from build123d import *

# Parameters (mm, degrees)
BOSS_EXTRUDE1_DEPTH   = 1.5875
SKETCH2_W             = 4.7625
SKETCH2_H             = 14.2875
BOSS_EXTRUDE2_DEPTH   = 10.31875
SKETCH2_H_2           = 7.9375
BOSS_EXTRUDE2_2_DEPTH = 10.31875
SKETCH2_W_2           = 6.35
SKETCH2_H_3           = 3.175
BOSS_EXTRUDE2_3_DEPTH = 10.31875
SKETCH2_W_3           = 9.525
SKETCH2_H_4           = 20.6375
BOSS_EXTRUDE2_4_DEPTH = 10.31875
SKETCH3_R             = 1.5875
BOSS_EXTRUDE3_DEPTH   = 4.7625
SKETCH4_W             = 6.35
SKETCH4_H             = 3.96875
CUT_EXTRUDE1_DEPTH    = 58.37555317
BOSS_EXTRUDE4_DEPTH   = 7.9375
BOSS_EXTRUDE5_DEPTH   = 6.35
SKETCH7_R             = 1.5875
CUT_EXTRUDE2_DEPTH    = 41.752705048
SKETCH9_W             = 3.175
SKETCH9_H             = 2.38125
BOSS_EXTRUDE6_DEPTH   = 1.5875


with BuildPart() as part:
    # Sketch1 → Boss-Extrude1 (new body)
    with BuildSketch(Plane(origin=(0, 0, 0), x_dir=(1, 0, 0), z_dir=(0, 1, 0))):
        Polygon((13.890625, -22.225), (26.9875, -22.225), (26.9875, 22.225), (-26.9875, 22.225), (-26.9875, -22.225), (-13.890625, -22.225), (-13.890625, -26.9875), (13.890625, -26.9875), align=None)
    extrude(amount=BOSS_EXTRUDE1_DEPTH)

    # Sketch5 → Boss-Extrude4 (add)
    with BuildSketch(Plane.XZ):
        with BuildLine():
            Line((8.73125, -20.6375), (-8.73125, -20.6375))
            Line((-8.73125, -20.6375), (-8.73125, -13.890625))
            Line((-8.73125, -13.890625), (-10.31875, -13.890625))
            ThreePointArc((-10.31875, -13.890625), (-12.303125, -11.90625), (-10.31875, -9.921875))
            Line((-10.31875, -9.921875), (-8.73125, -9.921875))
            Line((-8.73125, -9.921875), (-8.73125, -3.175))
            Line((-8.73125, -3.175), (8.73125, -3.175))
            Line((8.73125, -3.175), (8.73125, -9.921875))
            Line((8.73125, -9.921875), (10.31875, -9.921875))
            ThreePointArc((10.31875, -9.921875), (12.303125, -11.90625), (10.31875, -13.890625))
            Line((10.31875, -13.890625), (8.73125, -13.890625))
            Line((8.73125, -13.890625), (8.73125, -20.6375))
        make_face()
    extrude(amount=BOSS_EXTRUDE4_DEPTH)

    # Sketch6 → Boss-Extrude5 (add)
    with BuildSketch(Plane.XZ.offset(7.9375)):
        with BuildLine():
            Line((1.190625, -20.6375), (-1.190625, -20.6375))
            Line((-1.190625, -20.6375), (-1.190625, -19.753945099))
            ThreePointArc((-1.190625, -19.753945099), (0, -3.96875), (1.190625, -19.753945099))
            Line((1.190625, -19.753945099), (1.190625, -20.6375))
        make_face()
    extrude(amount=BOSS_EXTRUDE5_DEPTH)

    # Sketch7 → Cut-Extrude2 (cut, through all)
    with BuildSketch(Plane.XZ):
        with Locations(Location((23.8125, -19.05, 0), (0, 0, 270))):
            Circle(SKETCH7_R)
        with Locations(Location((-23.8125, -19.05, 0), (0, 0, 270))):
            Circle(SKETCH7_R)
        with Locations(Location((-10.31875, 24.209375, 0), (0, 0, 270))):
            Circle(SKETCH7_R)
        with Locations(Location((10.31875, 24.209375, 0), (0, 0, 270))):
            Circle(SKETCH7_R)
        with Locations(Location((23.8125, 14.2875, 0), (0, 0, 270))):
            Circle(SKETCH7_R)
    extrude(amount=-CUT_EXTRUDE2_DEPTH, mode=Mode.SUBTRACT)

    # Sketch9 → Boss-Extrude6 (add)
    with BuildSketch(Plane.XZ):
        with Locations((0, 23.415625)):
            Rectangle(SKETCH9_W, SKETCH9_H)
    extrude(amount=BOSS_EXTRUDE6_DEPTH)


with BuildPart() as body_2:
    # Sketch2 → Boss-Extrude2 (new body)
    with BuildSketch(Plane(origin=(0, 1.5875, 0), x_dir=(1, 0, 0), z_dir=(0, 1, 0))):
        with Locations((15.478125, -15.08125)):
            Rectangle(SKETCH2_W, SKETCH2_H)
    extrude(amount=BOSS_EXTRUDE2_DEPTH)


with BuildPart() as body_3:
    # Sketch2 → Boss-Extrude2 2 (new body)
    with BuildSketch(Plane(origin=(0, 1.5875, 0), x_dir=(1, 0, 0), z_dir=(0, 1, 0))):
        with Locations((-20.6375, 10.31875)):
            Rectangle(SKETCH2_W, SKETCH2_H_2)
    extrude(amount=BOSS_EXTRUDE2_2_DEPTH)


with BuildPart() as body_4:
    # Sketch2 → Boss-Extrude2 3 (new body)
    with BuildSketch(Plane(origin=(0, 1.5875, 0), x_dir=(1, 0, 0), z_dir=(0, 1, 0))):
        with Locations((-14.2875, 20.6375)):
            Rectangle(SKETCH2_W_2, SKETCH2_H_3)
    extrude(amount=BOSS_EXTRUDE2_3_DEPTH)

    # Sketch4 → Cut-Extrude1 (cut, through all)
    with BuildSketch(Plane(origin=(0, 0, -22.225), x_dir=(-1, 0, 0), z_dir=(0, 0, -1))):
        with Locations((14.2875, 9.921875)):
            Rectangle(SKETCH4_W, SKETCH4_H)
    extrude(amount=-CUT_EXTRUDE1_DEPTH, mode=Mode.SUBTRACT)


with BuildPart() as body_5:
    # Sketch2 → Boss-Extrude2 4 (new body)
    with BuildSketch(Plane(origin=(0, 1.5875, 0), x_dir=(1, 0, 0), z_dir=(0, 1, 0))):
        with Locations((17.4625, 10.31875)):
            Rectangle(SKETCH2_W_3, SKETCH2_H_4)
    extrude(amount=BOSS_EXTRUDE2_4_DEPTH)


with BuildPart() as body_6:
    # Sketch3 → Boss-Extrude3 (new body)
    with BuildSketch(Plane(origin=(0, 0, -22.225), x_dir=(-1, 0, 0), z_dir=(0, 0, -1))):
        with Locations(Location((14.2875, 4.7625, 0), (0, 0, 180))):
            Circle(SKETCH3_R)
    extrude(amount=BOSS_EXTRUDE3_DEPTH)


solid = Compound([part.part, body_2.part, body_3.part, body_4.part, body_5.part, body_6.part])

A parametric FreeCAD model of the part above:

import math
import FreeCAD as App
import Part
import Sketcher

V = App.Vector
Q = App.Units.Quantity

doc = App.newDocument("Part")
body = doc.addObject("PartDesign::Body", "Body")

# Sketch on XZ plane
sketch1 = body.newObject("Sketcher::SketchObject", "Sketch")
sketch1.AttachmentSupport = (doc.getObject("XZ_Plane"), [""])
sketch1.MapMode = "FlatFace"
sketch1.addGeometry(Part.LineSegment(V(13.890625, 22.225, 0), V(26.9875, 22.225, 0)), False)
sketch1.addGeometry(Part.LineSegment(V(26.9875, 22.225, 0), V(26.9875, -22.225, 0)), False)
sketch1.addGeometry(Part.LineSegment(V(26.9875, -22.225, 0), V(-26.9875, -22.225, 0)), False)
sketch1.addGeometry(Part.LineSegment(V(-26.9875, -22.225, 0), V(-26.9875, 22.225, 0)), False)
sketch1.addGeometry(Part.LineSegment(V(-26.9875, 22.225, 0), V(-13.890625, 22.225, 0)), False)
sketch1.addGeometry(Part.LineSegment(V(-13.890625, 22.225, 0), V(-13.890625, 26.9875, 0)), False)
sketch1.addGeometry(Part.LineSegment(V(-13.890625, 26.9875, 0), V(13.890625, 26.9875, 0)), False)
sketch1.addGeometry(Part.LineSegment(V(13.890625, 26.9875, 0), V(13.890625, 22.225, 0)), False)
sketch1.addConstraint(Sketcher.Constraint("Coincident", 0, 2, 1, 1))
sketch1.addConstraint(Sketcher.Constraint("Coincident", 1, 2, 2, 1))
sketch1.addConstraint(Sketcher.Constraint("Coincident", 2, 2, 3, 1))
sketch1.addConstraint(Sketcher.Constraint("Coincident", 3, 2, 4, 1))
sketch1.addConstraint(Sketcher.Constraint("Coincident", 4, 2, 5, 1))
sketch1.addConstraint(Sketcher.Constraint("Coincident", 5, 2, 6, 1))
sketch1.addConstraint(Sketcher.Constraint("Coincident", 6, 2, 7, 1))
sketch1.addConstraint(Sketcher.Constraint("Coincident", 7, 2, 0, 1))
sketch1.addConstraint(Sketcher.Constraint("Horizontal", 0))
sketch1.addConstraint(Sketcher.Constraint("Vertical", 1))
sketch1.addConstraint(Sketcher.Constraint("Horizontal", 2))
sketch1.addConstraint(Sketcher.Constraint("Vertical", 3))
sketch1.addConstraint(Sketcher.Constraint("Horizontal", 4))
sketch1.addConstraint(Sketcher.Constraint("Vertical", 5))
sketch1.addConstraint(Sketcher.Constraint("Horizontal", 6))
sketch1.addConstraint(Sketcher.Constraint("Vertical", 7))
sketch1.addConstraint(Sketcher.Constraint("Symmetric", 0, 2, 2, 2, -1, 1))
sketch1.addConstraint(Sketcher.Constraint("Symmetric", 4, 2, 7, 2, -2))
sketch1.addConstraint(Sketcher.Constraint("DistanceY", 1, 2, 1, 1, Q("1.75 in")))
sketch1.addConstraint(Sketcher.Constraint("DistanceX", 0, 1, 0, 2, Q("0.515625 in")))
sketch1.addConstraint(Sketcher.Constraint("DistanceX", 2, 2, 2, 1, Q("2.125 in")))
sketch1.addConstraint(Sketcher.Constraint("DistanceY", 5, 1, 5, 2, Q("0.1875 in")))
pad1 = body.newObject("PartDesign::Pad", "Pad")
pad1.Profile = sketch1
pad1.Length = Q("0.0625 in")
pad1.Reversed = True

# Sketch on XZ plane
sketch2 = body.newObject("Sketcher::SketchObject", "Sketch001")
sketch2.AttachmentSupport = (doc.getObject("XZ_Plane"), [""])
sketch2.MapMode = "FlatFace"
sketch2.addGeometry(Part.LineSegment(V(-8.73125, -20.6375, 0), V(8.73125, -20.6375, 0)), False)
sketch2.addGeometry(Part.LineSegment(V(8.73125, -20.6375, 0), V(8.73125, -13.890625, 0)), False)
sketch2.addGeometry(Part.LineSegment(V(8.73125, -13.890625, 0), V(10.31875, -13.890625, 0)), False)
sketch2.addGeometry(Part.ArcOfCircle(Part.Circle(V(10.31875, -11.90625, 0), V(0, 0, 1), 1.984375), math.radians(-90), math.radians(90)), False)
sketch2.addGeometry(Part.LineSegment(V(10.31875, -9.921875, 0), V(8.73125, -9.921875, 0)), False)
sketch2.addGeometry(Part.LineSegment(V(8.73125, -9.921875, 0), V(8.73125, -3.175, 0)), False)
sketch2.addGeometry(Part.LineSegment(V(8.73125, -3.175, 0), V(-8.73125, -3.175, 0)), False)
sketch2.addGeometry(Part.LineSegment(V(-8.73125, -3.175, 0), V(-8.73125, -9.921875, 0)), False)
sketch2.addGeometry(Part.LineSegment(V(-8.73125, -9.921875, 0), V(-10.31875, -9.921875, 0)), False)
sketch2.addGeometry(Part.ArcOfCircle(Part.Circle(V(-10.31875, -11.90625, 0), V(0, 0, 1), 1.984375), math.radians(90), math.radians(270)), False)
sketch2.addGeometry(Part.LineSegment(V(-10.31875, -13.890625, 0), V(-8.73125, -13.890625, 0)), False)
sketch2.addGeometry(Part.LineSegment(V(-8.73125, -13.890625, 0), V(-8.73125, -20.6375, 0)), False)
sketch2.addConstraint(Sketcher.Constraint("Coincident", 0, 2, 1, 1))
sketch2.addConstraint(Sketcher.Constraint("Coincident", 1, 2, 2, 1))
sketch2.addConstraint(Sketcher.Constraint("Tangent", 2, 2, 3, 1))
sketch2.addConstraint(Sketcher.Constraint("Tangent", 3, 2, 4, 1))
sketch2.addConstraint(Sketcher.Constraint("Coincident", 4, 2, 5, 1))
sketch2.addConstraint(Sketcher.Constraint("Coincident", 5, 2, 6, 1))
sketch2.addConstraint(Sketcher.Constraint("Coincident", 6, 2, 7, 1))
sketch2.addConstraint(Sketcher.Constraint("Coincident", 7, 2, 8, 1))
sketch2.addConstraint(Sketcher.Constraint("Tangent", 8, 2, 9, 1))
sketch2.addConstraint(Sketcher.Constraint("Tangent", 9, 2, 10, 1))
sketch2.addConstraint(Sketcher.Constraint("Coincident", 10, 2, 11, 1))
sketch2.addConstraint(Sketcher.Constraint("Coincident", 11, 2, 0, 1))
sketch2.addConstraint(Sketcher.Constraint("Horizontal", 0))
sketch2.addConstraint(Sketcher.Constraint("Vertical", 1))
sketch2.addConstraint(Sketcher.Constraint("Horizontal", 2))
sketch2.addConstraint(Sketcher.Constraint("Horizontal", 4))
sketch2.addConstraint(Sketcher.Constraint("Vertical", 5))
sketch2.addConstraint(Sketcher.Constraint("Horizontal", 6))
sketch2.addConstraint(Sketcher.Constraint("Vertical", 7))
sketch2.addConstraint(Sketcher.Constraint("Horizontal", 8))
sketch2.addConstraint(Sketcher.Constraint("Horizontal", 10))
sketch2.addConstraint(Sketcher.Constraint("Vertical", 11))
sketch2.addConstraint(Sketcher.Constraint("Equal", 3, 9))
sketch2.addConstraint(Sketcher.Constraint("Symmetric", 3, 3, 9, 3, -2))
sketch2.addConstraint(Sketcher.Constraint("Vertical", 1, 2, 4, 2))
sketch2.addConstraint(Sketcher.Constraint("Vertical", 7, 2, 10, 2))
sketch2.addConstraint(Sketcher.Constraint("Equal", 4, 8))
sketch2.addConstraint(Sketcher.Constraint("Equal", 1, 5))
sketch2.addConstraint(Sketcher.Constraint("Radius", 3, Q("0.078125 in")))
sketch2.addConstraint(Sketcher.Constraint("DistanceX", 0, 1, 0, 2, Q("0.6875 in")))
sketch2.addConstraint(Sketcher.Constraint("DistanceX", 2, 1, 2, 2, Q("0.0625 in")))
sketch2.addConstraint(Sketcher.Constraint("DistanceY", 1, 1, 1, 2, Q("0.265625 in")))
sketch2.addConstraint(Sketcher.Constraint("DistanceY", 3, 3, -1, 1, Q("0.46875 in")))
pad2 = body.newObject("PartDesign::Pad", "Pad001")
pad2.Profile = sketch2
pad2.Length = Q("0.3125 in")

# Sketch on XZ plane
sketch3 = body.newObject("Sketcher::SketchObject", "Sketch002")
sketch3.AttachmentSupport = (doc.getObject("XZ_Plane"), [""])
sketch3.MapMode = "FlatFace"
sketch3.AttachmentOffset = App.Placement(V(0, 0, 0.3125 * 25.4), App.Rotation())
sketch3.addGeometry(Part.LineSegment(V(-1.190625, -20.6375, 0), V(1.190625, -20.6375, 0)), False)
sketch3.addGeometry(Part.LineSegment(V(1.190625, -20.6375, 0), V(1.190625, -19.753945, 0)), False)
sketch3.addGeometry(Part.ArcOfCircle(Part.Circle(V(0, -11.90625, 0), V(0, 0, 1), 7.9375), math.radians(-81.373073), math.radians(261.373073)), False)
sketch3.addGeometry(Part.LineSegment(V(-1.190625, -19.753945, 0), V(-1.190625, -20.6375, 0)), False)
sketch3.addConstraint(Sketcher.Constraint("Coincident", 0, 2, 1, 1))
sketch3.addConstraint(Sketcher.Constraint("Coincident", 1, 2, 2, 1))
sketch3.addConstraint(Sketcher.Constraint("Coincident", 2, 2, 3, 1))
sketch3.addConstraint(Sketcher.Constraint("Coincident", 3, 2, 0, 1))
sketch3.addConstraint(Sketcher.Constraint("Horizontal", 0))
sketch3.addConstraint(Sketcher.Constraint("Vertical", 1))
sketch3.addConstraint(Sketcher.Constraint("Vertical", 3))
sketch3.addConstraint(Sketcher.Constraint("Symmetric", 1, 2, 2, 2, -2))
sketch3.addConstraint(Sketcher.Constraint("Radius", 2, Q("0.3125 in")))
sketch3.addConstraint(Sketcher.Constraint("DistanceX", 0, 1, 0, 2, Q("0.09375 in")))
sketch3.addConstraint(Sketcher.Constraint("DistanceY", 2, 3, -1, 1, Q("0.46875 in")))
sketch3.addConstraint(Sketcher.Constraint("DistanceY", 0, 2, -1, 1, Q("0.8125 in")))
pad3 = body.newObject("PartDesign::Pad", "Pad002")
pad3.Profile = sketch3
pad3.Length = Q("0.25 in")

# Sketch on XZ plane
sketch4 = body.newObject("Sketcher::SketchObject", "Sketch003")
sketch4.AttachmentSupport = (doc.getObject("XZ_Plane"), [""])
sketch4.MapMode = "FlatFace"
sketch4.addGeometry(Part.Circle(V(23.8125, -19.05, 0), V(0, 0, 1), 1.5875), False)
sketch4.addGeometry(Part.Circle(V(-23.8125, -19.05, 0), V(0, 0, 1), 1.5875), False)
sketch4.addGeometry(Part.Circle(V(-10.31875, 24.209375, 0), V(0, 0, 1), 1.5875), False)
sketch4.addGeometry(Part.Circle(V(10.31875, 24.209375, 0), V(0, 0, 1), 1.5875), False)
sketch4.addGeometry(Part.Circle(V(23.8125, 14.2875, 0), V(0, 0, 1), 1.5875), False)
sketch4.addConstraint(Sketcher.Constraint("Equal", 0, 1))
sketch4.addConstraint(Sketcher.Constraint("Equal", 1, 2))
sketch4.addConstraint(Sketcher.Constraint("Equal", 2, 3))
sketch4.addConstraint(Sketcher.Constraint("Equal", 3, 4))
sketch4.addConstraint(Sketcher.Constraint("Symmetric", 0, 3, 1, 3, -2))
sketch4.addConstraint(Sketcher.Constraint("Symmetric", 2, 3, 3, 3, -2))
sketch4.addConstraint(Sketcher.Constraint("Vertical", 0, 3, 4, 3))
sketch4.addConstraint(Sketcher.Constraint("Diameter", 0, Q("0.125 in")))
sketch4.addConstraint(Sketcher.Constraint("DistanceY", 0, 3, -1, 1, Q("0.75 in")))
sketch4.addConstraint(Sketcher.Constraint("DistanceX", -1, 1, 0, 3, Q("0.9375 in")))
sketch4.addConstraint(Sketcher.Constraint("DistanceX", 2, 3, -1, 1, Q("0.40625 in")))
sketch4.addConstraint(Sketcher.Constraint("DistanceY", -1, 1, 2, 3, Q("0.953125 in")))
sketch4.addConstraint(Sketcher.Constraint("DistanceY", -1, 1, 4, 3, Q("0.5625 in")))
pocket1 = body.newObject("PartDesign::Pocket", "Pocket")
pocket1.Profile = sketch4
pocket1.Type = "ThroughAll"

# Sketch on XZ plane
sketch5 = body.newObject("Sketcher::SketchObject", "Sketch004")
sketch5.AttachmentSupport = (doc.getObject("XZ_Plane"), [""])
sketch5.MapMode = "FlatFace"
sketch5.addGeometry(Part.LineSegment(V(-1.5875, 24.60625, 0), V(-1.5875, 22.225, 0)), False)
sketch5.addGeometry(Part.LineSegment(V(-1.5875, 22.225, 0), V(1.5875, 22.225, 0)), False)
sketch5.addGeometry(Part.LineSegment(V(1.5875, 22.225, 0), V(1.5875, 24.60625, 0)), False)
sketch5.addGeometry(Part.LineSegment(V(1.5875, 24.60625, 0), V(-1.5875, 24.60625, 0)), False)
sketch5.addConstraint(Sketcher.Constraint("Coincident", 0, 2, 1, 1))
sketch5.addConstraint(Sketcher.Constraint("Coincident", 1, 2, 2, 1))
sketch5.addConstraint(Sketcher.Constraint("Coincident", 2, 2, 3, 1))
sketch5.addConstraint(Sketcher.Constraint("Coincident", 3, 2, 0, 1))
sketch5.addConstraint(Sketcher.Constraint("Vertical", 0))
sketch5.addConstraint(Sketcher.Constraint("Horizontal", 1))
sketch5.addConstraint(Sketcher.Constraint("Vertical", 2))
sketch5.addConstraint(Sketcher.Constraint("Horizontal", 3))
sketch5.addConstraint(Sketcher.Constraint("DistanceX", 1, 1, 1, 2, Q("0.125 in")))
sketch5.addConstraint(Sketcher.Constraint("DistanceY", 0, 2, 0, 1, Q("0.09375 in")))
sketch5.addConstraint(Sketcher.Constraint("DistanceX", 0, 2, -1, 1, Q("0.0625 in")))
sketch5.addConstraint(Sketcher.Constraint("DistanceY", -1, 1, 0, 2, Q("0.875 in")))
pad4 = body.newObject("PartDesign::Pad", "Pad003")
pad4.Profile = sketch5
pad4.Length = Q("0.0625 in")
body2 = doc.addObject("PartDesign::Body", "Body001")

# Sketch on XZ plane
sketch6 = body2.newObject("Sketcher::SketchObject", "Sketch005")
sketch6.AttachmentSupport = (doc.getObject("XZ_Plane001"), [""])
sketch6.MapMode = "FlatFace"
sketch6.AttachmentOffset = App.Placement(V(0, 0, -0.0625 * 25.4), App.Rotation())
sketch6.addGeometry(Part.LineSegment(V(13.096875, 7.9375, 0), V(13.096875, 22.225, 0)), False)
sketch6.addGeometry(Part.LineSegment(V(13.096875, 22.225, 0), V(17.859375, 22.225, 0)), False)
sketch6.addGeometry(Part.LineSegment(V(17.859375, 22.225, 0), V(17.859375, 7.9375, 0)), False)
sketch6.addGeometry(Part.LineSegment(V(17.859375, 7.9375, 0), V(13.096875, 7.9375, 0)), False)
sketch6.addConstraint(Sketcher.Constraint("Coincident", 0, 2, 1, 1))
sketch6.addConstraint(Sketcher.Constraint("Coincident", 1, 2, 2, 1))
sketch6.addConstraint(Sketcher.Constraint("Coincident", 2, 2, 3, 1))
sketch6.addConstraint(Sketcher.Constraint("Coincident", 3, 2, 0, 1))
sketch6.addConstraint(Sketcher.Constraint("Vertical", 0))
sketch6.addConstraint(Sketcher.Constraint("Horizontal", 1))
sketch6.addConstraint(Sketcher.Constraint("Vertical", 2))
sketch6.addConstraint(Sketcher.Constraint("Horizontal", 3))
sketch6.addConstraint(Sketcher.Constraint("DistanceX", 1, 1, 1, 2, Q("0.1875 in")))
sketch6.addConstraint(Sketcher.Constraint("DistanceY", 0, 1, 0, 2, Q("0.5625 in")))
sketch6.addConstraint(Sketcher.Constraint("DistanceX", -1, 1, 0, 2, Q("0.515625 in")))
sketch6.addConstraint(Sketcher.Constraint("DistanceY", -1, 1, 0, 2, Q("0.875 in")))
pad5 = body2.newObject("PartDesign::Pad", "Pad004")
pad5.Profile = sketch6
pad5.Length = Q("0.40625 in")
pad5.Reversed = True
body3 = doc.addObject("PartDesign::Body", "Body002")

# Sketch on XZ plane
sketch7 = body3.newObject("Sketcher::SketchObject", "Sketch006")
sketch7.AttachmentSupport = (doc.getObject("XZ_Plane002"), [""])
sketch7.MapMode = "FlatFace"
sketch7.AttachmentOffset = App.Placement(V(0, 0, -0.0625 * 25.4), App.Rotation())
sketch7.addGeometry(Part.LineSegment(V(-23.01875, -14.2875, 0), V(-23.01875, -6.35, 0)), False)
sketch7.addGeometry(Part.LineSegment(V(-23.01875, -6.35, 0), V(-18.25625, -6.35, 0)), False)
sketch7.addGeometry(Part.LineSegment(V(-18.25625, -6.35, 0), V(-18.25625, -14.2875, 0)), False)
sketch7.addGeometry(Part.LineSegment(V(-18.25625, -14.2875, 0), V(-23.01875, -14.2875, 0)), False)
sketch7.addConstraint(Sketcher.Constraint("Coincident", 0, 2, 1, 1))
sketch7.addConstraint(Sketcher.Constraint("Coincident", 1, 2, 2, 1))
sketch7.addConstraint(Sketcher.Constraint("Coincident", 2, 2, 3, 1))
sketch7.addConstraint(Sketcher.Constraint("Coincident", 3, 2, 0, 1))
sketch7.addConstraint(Sketcher.Constraint("Vertical", 0))
sketch7.addConstraint(Sketcher.Constraint("Horizontal", 1))
sketch7.addConstraint(Sketcher.Constraint("Vertical", 2))
sketch7.addConstraint(Sketcher.Constraint("Horizontal", 3))
sketch7.addConstraint(Sketcher.Constraint("DistanceX", 1, 1, 1, 2, Q("0.1875 in")))
sketch7.addConstraint(Sketcher.Constraint("DistanceY", 0, 1, 0, 2, Q("0.3125 in")))
sketch7.addConstraint(Sketcher.Constraint("DistanceY", 0, 2, -1, 1, Q("0.25 in")))
sketch7.addConstraint(Sketcher.Constraint("DistanceX", 0, 2, -1, 1, Q("0.90625 in")))
pad6 = body3.newObject("PartDesign::Pad", "Pad005")
pad6.Profile = sketch7
pad6.Length = Q("0.40625 in")
pad6.Reversed = True
body4 = doc.addObject("PartDesign::Body", "Body003")

# Sketch on XZ plane
sketch8 = body4.newObject("Sketcher::SketchObject", "Sketch007")
sketch8.AttachmentSupport = (doc.getObject("XZ_Plane003"), [""])
sketch8.MapMode = "FlatFace"
sketch8.AttachmentOffset = App.Placement(V(0, 0, -0.0625 * 25.4), App.Rotation())
sketch8.addGeometry(Part.LineSegment(V(-17.4625, -22.225, 0), V(-17.4625, -19.05, 0)), False)
sketch8.addGeometry(Part.LineSegment(V(-17.4625, -19.05, 0), V(-11.1125, -19.05, 0)), False)
sketch8.addGeometry(Part.LineSegment(V(-11.1125, -19.05, 0), V(-11.1125, -22.225, 0)), False)
sketch8.addGeometry(Part.LineSegment(V(-11.1125, -22.225, 0), V(-17.4625, -22.225, 0)), False)
sketch8.addConstraint(Sketcher.Constraint("Coincident", 0, 2, 1, 1))
sketch8.addConstraint(Sketcher.Constraint("Coincident", 1, 2, 2, 1))
sketch8.addConstraint(Sketcher.Constraint("Coincident", 2, 2, 3, 1))
sketch8.addConstraint(Sketcher.Constraint("Coincident", 3, 2, 0, 1))
sketch8.addConstraint(Sketcher.Constraint("Vertical", 0))
sketch8.addConstraint(Sketcher.Constraint("Horizontal", 1))
sketch8.addConstraint(Sketcher.Constraint("Vertical", 2))
sketch8.addConstraint(Sketcher.Constraint("Horizontal", 3))
sketch8.addConstraint(Sketcher.Constraint("DistanceX", 1, 1, 1, 2, Q("0.25 in")))
sketch8.addConstraint(Sketcher.Constraint("DistanceY", 0, 1, 0, 2, Q("0.125 in")))
sketch8.addConstraint(Sketcher.Constraint("DistanceY", 0, 2, -1, 1, Q("0.75 in")))
sketch8.addConstraint(Sketcher.Constraint("DistanceX", 0, 2, -1, 1, Q("0.6875 in")))
pad7 = body4.newObject("PartDesign::Pad", "Pad006")
pad7.Profile = sketch8
pad7.Length = Q("0.40625 in")
pad7.Reversed = True

# Sketch on XY plane
sketch9 = body4.newObject("Sketcher::SketchObject", "Sketch008")
sketch9.AttachmentSupport = (doc.getObject("XY_Plane003"), [""])
sketch9.MapMode = "FlatFace"
sketch9.AttachmentOffset = App.Placement(V(0, 0, -0.875 * 25.4), App.Rotation())
sketch9.addGeometry(Part.LineSegment(V(-11.1125, 11.90625, 0), V(-11.1125, 7.9375, 0)), False)
sketch9.addGeometry(Part.LineSegment(V(-11.1125, 7.9375, 0), V(-17.4625, 7.9375, 0)), False)
sketch9.addGeometry(Part.LineSegment(V(-17.4625, 7.9375, 0), V(-17.4625, 11.90625, 0)), False)
sketch9.addGeometry(Part.LineSegment(V(-17.4625, 11.90625, 0), V(-11.1125, 11.90625, 0)), False)
sketch9.addConstraint(Sketcher.Constraint("Coincident", 0, 2, 1, 1))
sketch9.addConstraint(Sketcher.Constraint("Coincident", 1, 2, 2, 1))
sketch9.addConstraint(Sketcher.Constraint("Coincident", 2, 2, 3, 1))
sketch9.addConstraint(Sketcher.Constraint("Coincident", 3, 2, 0, 1))
sketch9.addConstraint(Sketcher.Constraint("Vertical", 0))
sketch9.addConstraint(Sketcher.Constraint("Horizontal", 1))
sketch9.addConstraint(Sketcher.Constraint("Vertical", 2))
sketch9.addConstraint(Sketcher.Constraint("Horizontal", 3))
sketch9.addConstraint(Sketcher.Constraint("DistanceX", 1, 2, 1, 1, Q("0.25 in")))
sketch9.addConstraint(Sketcher.Constraint("DistanceY", 0, 2, 0, 1, Q("0.15625 in")))
sketch9.addConstraint(Sketcher.Constraint("DistanceX", 0, 2, -1, 1, Q("0.4375 in")))
sketch9.addConstraint(Sketcher.Constraint("DistanceY", -1, 1, 0, 2, Q("0.3125 in")))
pocket2 = body4.newObject("PartDesign::Pocket", "Pocket001")
pocket2.Profile = sketch9
pocket2.Type = "ThroughAll"
pocket2.Reversed = True
body5 = doc.addObject("PartDesign::Body", "Body004")

# Sketch on XZ plane
sketch10 = body5.newObject("Sketcher::SketchObject", "Sketch009")
sketch10.AttachmentSupport = (doc.getObject("XZ_Plane004"), [""])
sketch10.MapMode = "FlatFace"
sketch10.AttachmentOffset = App.Placement(V(0, 0, -0.0625 * 25.4), App.Rotation())
sketch10.addGeometry(Part.LineSegment(V(12.7, -20.6375, 0), V(12.7, 0, 0)), False)
sketch10.addGeometry(Part.LineSegment(V(12.7, 0, 0), V(22.225, 0, 0)), False)
sketch10.addGeometry(Part.LineSegment(V(22.225, 0, 0), V(22.225, -20.6375, 0)), False)
sketch10.addGeometry(Part.LineSegment(V(22.225, -20.6375, 0), V(12.7, -20.6375, 0)), False)
sketch10.addConstraint(Sketcher.Constraint("Coincident", 0, 2, 1, 1))
sketch10.addConstraint(Sketcher.Constraint("Coincident", 1, 2, 2, 1))
sketch10.addConstraint(Sketcher.Constraint("Coincident", 2, 2, 3, 1))
sketch10.addConstraint(Sketcher.Constraint("Coincident", 3, 2, 0, 1))
sketch10.addConstraint(Sketcher.Constraint("Vertical", 0))
sketch10.addConstraint(Sketcher.Constraint("Horizontal", 1))
sketch10.addConstraint(Sketcher.Constraint("Vertical", 2))
sketch10.addConstraint(Sketcher.Constraint("Horizontal", 3))
sketch10.addConstraint(Sketcher.Constraint("PointOnObject", 0, 2, -1))
sketch10.addConstraint(Sketcher.Constraint("DistanceX", -1, 1, 0, 2, Q("0.5 in")))
sketch10.addConstraint(Sketcher.Constraint("DistanceX", 1, 1, 1, 2, Q("0.375 in")))
sketch10.addConstraint(Sketcher.Constraint("DistanceY", 0, 1, 0, 2, Q("0.8125 in")))
pad8 = body5.newObject("PartDesign::Pad", "Pad007")
pad8.Profile = sketch10
pad8.Length = Q("0.40625 in")
pad8.Reversed = True
body6 = doc.addObject("PartDesign::Body", "Body005")

# Sketch on XY plane
sketch11 = body6.newObject("Sketcher::SketchObject", "Sketch010")
sketch11.AttachmentSupport = (doc.getObject("XY_Plane005"), [""])
sketch11.MapMode = "FlatFace"
sketch11.AttachmentOffset = App.Placement(V(0, 0, -0.875 * 25.4), App.Rotation())
sketch11.addGeometry(Part.Circle(V(-14.2875, 4.7625, 0), V(0, 0, 1), 1.5875), False)
sketch11.addConstraint(Sketcher.Constraint("Diameter", 0, Q("0.125 in")))
sketch11.addConstraint(Sketcher.Constraint("DistanceX", 0, 3, -1, 1, Q("0.5625 in")))
sketch11.addConstraint(Sketcher.Constraint("DistanceY", -1, 1, 0, 3, Q("0.1875 in")))
pad9 = body6.newObject("PartDesign::Pad", "Pad008")
pad9.Profile = sketch11
pad9.Length = Q("0.1875 in")
pad9.Reversed = True

doc.recompute()
